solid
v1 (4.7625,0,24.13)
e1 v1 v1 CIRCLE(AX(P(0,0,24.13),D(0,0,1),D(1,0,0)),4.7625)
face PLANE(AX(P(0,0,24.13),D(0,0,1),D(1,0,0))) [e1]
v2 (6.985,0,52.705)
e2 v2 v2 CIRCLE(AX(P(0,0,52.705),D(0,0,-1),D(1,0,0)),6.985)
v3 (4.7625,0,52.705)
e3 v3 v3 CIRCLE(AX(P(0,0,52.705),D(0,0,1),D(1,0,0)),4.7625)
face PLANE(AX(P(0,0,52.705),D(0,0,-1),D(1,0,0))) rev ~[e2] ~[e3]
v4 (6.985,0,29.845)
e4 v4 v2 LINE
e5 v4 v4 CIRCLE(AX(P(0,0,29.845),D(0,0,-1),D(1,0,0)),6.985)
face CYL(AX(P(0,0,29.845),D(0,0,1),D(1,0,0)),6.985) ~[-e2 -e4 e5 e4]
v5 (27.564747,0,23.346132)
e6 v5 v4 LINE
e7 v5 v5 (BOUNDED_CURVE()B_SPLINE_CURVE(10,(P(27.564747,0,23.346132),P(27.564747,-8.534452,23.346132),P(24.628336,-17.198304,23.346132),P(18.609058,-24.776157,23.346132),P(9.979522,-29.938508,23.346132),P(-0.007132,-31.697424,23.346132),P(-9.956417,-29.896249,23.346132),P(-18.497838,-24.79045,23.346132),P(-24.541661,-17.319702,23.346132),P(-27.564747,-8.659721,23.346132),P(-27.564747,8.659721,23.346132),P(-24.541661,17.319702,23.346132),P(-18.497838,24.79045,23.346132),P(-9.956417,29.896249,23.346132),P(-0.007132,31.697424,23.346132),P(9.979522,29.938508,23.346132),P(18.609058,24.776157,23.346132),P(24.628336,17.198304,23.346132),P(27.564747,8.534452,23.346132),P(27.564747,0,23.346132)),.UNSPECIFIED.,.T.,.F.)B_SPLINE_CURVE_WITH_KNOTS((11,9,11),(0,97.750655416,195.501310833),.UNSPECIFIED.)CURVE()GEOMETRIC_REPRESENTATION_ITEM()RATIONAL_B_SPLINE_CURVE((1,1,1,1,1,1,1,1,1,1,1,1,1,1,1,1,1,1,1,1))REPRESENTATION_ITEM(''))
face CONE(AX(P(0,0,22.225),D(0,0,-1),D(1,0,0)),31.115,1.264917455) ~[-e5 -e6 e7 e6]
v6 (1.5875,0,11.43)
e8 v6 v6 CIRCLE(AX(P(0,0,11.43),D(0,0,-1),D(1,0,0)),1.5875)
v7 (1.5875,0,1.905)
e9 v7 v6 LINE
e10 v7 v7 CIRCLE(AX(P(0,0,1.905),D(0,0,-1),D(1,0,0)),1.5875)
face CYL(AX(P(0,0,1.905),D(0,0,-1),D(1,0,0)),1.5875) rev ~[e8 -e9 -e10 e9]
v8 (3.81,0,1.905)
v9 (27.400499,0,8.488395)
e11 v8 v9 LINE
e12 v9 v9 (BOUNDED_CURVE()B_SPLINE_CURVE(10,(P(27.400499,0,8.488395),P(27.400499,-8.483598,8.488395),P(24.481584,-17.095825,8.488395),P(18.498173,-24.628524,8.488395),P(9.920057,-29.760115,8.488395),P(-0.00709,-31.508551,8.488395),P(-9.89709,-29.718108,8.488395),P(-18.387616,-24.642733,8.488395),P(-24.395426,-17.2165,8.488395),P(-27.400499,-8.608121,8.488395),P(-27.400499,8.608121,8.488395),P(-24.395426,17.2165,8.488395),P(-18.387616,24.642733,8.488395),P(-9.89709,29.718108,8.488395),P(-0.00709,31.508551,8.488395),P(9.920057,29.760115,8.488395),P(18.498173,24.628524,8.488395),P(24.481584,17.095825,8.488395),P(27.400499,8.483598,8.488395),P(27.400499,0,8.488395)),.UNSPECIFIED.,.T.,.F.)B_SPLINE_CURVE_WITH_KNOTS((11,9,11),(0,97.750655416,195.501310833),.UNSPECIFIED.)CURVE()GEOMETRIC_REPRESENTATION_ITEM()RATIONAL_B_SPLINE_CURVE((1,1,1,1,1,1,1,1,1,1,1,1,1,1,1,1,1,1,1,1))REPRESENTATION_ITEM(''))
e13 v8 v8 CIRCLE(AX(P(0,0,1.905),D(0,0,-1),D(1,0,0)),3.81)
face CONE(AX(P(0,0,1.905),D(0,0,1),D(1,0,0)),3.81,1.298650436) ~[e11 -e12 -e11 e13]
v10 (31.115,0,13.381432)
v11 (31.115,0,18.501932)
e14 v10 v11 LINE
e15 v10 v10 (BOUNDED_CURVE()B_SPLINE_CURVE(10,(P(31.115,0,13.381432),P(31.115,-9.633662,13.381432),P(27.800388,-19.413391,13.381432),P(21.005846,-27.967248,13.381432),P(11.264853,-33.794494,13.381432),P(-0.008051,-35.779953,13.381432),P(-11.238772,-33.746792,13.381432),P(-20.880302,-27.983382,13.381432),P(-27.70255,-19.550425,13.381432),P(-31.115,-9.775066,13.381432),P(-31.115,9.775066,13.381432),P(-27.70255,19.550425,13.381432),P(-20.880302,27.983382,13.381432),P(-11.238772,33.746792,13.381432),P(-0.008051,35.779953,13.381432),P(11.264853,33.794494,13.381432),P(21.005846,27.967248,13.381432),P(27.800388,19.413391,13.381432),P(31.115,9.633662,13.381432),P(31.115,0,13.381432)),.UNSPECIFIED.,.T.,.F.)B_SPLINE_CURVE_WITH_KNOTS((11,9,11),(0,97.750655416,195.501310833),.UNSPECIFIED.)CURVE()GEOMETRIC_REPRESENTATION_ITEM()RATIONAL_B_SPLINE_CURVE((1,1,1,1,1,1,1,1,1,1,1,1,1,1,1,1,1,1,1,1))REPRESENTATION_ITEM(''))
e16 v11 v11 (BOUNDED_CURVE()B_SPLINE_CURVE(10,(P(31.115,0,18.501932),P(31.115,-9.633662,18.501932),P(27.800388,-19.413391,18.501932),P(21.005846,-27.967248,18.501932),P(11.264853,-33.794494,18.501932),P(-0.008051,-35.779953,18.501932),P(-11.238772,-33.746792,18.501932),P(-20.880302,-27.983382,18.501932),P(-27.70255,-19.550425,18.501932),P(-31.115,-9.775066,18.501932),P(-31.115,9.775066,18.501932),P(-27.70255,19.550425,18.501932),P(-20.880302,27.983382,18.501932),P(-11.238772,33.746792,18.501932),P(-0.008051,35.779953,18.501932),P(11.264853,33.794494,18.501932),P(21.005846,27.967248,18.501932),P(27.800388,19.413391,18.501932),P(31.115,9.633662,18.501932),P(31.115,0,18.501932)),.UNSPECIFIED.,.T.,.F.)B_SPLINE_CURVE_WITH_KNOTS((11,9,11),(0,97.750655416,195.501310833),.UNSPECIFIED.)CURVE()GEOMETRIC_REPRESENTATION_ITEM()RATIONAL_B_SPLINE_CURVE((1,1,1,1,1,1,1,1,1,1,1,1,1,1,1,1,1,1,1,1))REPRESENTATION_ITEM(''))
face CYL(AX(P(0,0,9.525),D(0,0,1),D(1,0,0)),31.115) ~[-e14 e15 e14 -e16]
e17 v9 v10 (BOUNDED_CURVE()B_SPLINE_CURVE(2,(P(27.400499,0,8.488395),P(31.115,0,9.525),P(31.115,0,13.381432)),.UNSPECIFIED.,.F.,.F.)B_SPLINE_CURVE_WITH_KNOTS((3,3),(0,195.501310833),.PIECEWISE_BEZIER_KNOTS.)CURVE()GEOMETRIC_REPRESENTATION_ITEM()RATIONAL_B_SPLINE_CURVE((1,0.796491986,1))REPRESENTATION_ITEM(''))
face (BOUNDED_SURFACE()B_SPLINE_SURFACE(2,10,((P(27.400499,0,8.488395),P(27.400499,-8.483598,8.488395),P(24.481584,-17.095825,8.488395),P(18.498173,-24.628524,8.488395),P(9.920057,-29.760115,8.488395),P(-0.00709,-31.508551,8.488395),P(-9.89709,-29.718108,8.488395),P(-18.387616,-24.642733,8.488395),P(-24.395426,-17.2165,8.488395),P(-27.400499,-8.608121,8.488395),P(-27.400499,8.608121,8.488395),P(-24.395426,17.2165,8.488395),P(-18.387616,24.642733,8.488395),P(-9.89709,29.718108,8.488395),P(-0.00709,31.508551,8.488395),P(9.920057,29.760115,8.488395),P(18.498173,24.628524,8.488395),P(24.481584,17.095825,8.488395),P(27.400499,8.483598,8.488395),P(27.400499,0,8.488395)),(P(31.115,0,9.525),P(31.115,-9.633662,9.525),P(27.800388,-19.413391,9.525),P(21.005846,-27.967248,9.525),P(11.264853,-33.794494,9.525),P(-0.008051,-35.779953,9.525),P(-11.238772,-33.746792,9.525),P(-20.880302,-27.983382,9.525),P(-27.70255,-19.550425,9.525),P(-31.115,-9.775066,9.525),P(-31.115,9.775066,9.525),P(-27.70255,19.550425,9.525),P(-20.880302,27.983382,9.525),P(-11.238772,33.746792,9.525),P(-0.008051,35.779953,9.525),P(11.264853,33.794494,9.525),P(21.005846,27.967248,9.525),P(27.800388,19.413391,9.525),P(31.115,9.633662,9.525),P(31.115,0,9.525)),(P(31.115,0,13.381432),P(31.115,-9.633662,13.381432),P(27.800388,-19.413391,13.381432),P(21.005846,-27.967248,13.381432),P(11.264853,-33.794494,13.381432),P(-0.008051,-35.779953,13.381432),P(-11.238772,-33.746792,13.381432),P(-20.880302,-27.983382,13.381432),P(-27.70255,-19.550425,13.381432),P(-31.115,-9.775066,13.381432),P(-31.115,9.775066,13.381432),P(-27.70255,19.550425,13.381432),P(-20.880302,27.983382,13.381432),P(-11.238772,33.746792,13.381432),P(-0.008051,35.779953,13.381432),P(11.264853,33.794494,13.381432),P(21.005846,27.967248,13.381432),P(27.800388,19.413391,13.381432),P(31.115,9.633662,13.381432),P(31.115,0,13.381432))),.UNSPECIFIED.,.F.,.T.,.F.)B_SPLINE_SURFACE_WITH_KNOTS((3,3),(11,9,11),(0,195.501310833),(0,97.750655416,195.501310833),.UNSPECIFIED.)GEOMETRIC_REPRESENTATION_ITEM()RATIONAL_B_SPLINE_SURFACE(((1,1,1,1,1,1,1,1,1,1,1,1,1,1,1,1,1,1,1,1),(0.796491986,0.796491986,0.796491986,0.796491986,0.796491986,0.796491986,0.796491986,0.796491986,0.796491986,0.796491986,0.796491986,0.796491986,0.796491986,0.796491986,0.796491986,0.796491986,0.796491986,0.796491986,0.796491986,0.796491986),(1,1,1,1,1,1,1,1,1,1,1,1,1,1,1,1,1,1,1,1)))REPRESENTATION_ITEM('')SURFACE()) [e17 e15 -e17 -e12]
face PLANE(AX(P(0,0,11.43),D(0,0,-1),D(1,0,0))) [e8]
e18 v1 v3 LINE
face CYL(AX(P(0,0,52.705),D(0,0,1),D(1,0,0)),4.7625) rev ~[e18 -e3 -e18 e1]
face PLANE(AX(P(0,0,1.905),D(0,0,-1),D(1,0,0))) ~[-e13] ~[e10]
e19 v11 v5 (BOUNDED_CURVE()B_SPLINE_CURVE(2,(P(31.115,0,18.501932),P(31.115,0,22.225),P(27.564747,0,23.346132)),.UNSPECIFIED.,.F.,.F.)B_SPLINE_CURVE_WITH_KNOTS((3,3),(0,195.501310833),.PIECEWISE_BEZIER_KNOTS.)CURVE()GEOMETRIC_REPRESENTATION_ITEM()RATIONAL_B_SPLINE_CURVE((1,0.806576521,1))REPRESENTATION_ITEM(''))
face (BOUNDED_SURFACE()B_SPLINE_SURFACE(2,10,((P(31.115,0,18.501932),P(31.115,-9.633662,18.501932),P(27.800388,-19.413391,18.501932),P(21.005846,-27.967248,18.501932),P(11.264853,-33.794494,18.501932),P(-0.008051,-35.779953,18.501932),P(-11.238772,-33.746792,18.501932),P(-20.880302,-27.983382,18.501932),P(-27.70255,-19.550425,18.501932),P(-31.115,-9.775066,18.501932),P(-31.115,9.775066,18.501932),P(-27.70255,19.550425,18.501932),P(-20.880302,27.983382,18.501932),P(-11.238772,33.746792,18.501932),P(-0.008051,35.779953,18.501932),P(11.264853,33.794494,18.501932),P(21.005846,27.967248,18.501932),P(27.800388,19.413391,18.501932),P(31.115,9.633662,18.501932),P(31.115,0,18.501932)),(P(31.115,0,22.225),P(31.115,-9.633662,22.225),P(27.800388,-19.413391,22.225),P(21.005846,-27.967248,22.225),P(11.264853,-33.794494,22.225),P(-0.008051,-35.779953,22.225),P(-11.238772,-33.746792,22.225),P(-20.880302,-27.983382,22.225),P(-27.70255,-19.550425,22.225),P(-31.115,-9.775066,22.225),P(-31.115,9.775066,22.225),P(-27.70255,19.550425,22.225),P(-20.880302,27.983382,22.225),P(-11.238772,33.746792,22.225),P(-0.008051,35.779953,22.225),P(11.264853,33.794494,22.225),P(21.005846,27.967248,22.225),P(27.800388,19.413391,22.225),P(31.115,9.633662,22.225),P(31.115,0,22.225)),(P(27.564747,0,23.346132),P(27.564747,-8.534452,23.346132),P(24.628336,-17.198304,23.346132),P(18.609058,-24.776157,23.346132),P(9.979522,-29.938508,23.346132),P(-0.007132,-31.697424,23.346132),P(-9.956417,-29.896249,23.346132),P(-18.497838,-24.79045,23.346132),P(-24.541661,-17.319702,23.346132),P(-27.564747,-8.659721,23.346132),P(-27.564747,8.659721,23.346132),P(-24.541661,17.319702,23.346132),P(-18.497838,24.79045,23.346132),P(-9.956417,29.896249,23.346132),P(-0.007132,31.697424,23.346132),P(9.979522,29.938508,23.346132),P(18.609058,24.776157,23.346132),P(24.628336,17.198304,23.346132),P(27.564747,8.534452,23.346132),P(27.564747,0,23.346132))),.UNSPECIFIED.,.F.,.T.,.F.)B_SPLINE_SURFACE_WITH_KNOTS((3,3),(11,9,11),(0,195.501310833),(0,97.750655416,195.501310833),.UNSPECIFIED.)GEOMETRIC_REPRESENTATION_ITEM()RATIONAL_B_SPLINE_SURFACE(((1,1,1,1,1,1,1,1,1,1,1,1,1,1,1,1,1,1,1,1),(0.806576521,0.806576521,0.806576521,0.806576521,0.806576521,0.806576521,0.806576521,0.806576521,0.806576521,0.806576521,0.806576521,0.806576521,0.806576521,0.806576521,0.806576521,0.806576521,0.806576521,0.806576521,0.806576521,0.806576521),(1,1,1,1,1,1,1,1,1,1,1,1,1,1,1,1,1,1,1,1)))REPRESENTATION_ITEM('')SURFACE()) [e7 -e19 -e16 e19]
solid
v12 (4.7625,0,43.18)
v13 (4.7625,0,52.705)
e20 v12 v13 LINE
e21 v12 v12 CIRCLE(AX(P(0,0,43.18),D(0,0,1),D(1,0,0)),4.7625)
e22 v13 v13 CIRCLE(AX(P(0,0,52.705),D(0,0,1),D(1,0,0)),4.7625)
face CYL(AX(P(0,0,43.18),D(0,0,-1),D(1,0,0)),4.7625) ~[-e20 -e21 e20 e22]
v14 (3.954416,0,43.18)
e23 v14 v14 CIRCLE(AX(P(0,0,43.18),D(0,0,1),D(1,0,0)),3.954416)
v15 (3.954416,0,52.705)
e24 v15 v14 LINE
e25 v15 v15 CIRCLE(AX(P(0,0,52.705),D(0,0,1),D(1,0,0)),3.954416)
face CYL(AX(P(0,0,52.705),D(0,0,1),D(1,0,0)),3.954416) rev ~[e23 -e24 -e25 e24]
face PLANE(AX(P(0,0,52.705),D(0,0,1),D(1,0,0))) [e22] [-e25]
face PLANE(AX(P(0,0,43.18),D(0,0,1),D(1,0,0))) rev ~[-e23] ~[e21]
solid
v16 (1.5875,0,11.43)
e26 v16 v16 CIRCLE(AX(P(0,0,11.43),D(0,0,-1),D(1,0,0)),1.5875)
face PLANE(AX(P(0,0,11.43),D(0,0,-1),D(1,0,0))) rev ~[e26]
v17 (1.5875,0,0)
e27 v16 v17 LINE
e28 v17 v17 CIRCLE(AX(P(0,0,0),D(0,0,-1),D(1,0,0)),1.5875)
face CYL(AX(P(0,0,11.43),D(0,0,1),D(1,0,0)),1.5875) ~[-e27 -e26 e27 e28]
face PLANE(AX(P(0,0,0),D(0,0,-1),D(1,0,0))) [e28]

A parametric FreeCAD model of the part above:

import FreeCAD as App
import Part
import Sketcher
from FreeCAD import Vector
Q = App.Units.Quantity


def edges_at(feature, points):
    """Names of the edges that pass closest to the given points."""
    edges = feature.Shape.Edges
    near = lambda p: min(range(len(edges)), key=lambda i: edges[i].distToShape(Part.Vertex(*p))[0])
    return sorted({f"Edge{near(p) + 1}" for p in points})

doc = App.newDocument("Part")
body = doc.addObject("PartDesign::Body", "Body")

# Sketch on XZ plane
sketch1 = body.newObject("Sketcher::SketchObject", "Sketch")
sketch1.AttachmentSupport = (doc.getObject("XZ_Plane"), [""])
sketch1.MapMode = "FlatFace"
sketch1.addGeometry(Part.LineSegment(Vector(3.8, 1.9, 0), Vector(31.1, 9.5, 0)), False)
sketch1.addGeometry(Part.LineSegment(Vector(31.1, 9.5, 0), Vector(31.1, 22.2, 0)), False)
sketch1.addGeometry(Part.LineSegment(Vector(31.1, 22.2, 0), Vector(7, 29.8, 0)), False)
sketch1.addGeometry(Part.LineSegment(Vector(7, 29.8, 0), Vector(7, 52.7, 0)), False)
sketch1.addGeometry(Part.LineSegment(Vector(7, 52.7, 0), Vector(0, 52.7, 0)), False)
sketch1.addGeometry(Part.LineSegment(Vector(0, 52.7, 0), Vector(0, 1.9, 0)), False)
sketch1.addGeometry(Part.LineSegment(Vector(0, 1.9, 0), Vector(3.8, 1.9, 0)), False)
sketch1.addConstraint(Sketcher.Constraint("Coincident", 0, 2, 1, 1))
sketch1.addConstraint(Sketcher.Constraint("Coincident", 1, 2, 2, 1))
sketch1.addConstraint(Sketcher.Constraint("Coincident", 2, 2, 3, 1))
sketch1.addConstraint(Sketcher.Constraint("Coincident", 3, 2, 4, 1))
sketch1.addConstraint(Sketcher.Constraint("Coincident", 4, 2, 5, 1))
sketch1.addConstraint(Sketcher.Constraint("Coincident", 5, 2, 6, 1))
sketch1.addConstraint(Sketcher.Constraint("Coincident", 6, 2, 0, 1))
sketch1.addConstraint(Sketcher.Constraint("Vertical", 1))
sketch1.addConstraint(Sketcher.Constraint("Vertical", 3))
sketch1.addConstraint(Sketcher.Constraint("Horizontal", 4))
sketch1.addConstraint(Sketcher.Constraint("Vertical", 5))
sketch1.addConstraint(Sketcher.Constraint("Horizontal", 6))
sketch1.addConstraint(Sketcher.Constraint("PointOnObject", 4, 2, -2))
sketch1.addConstraint(Sketcher.Constraint("DistanceY", 5, 2, 5, 1, Q("2 in")))
sketch1.addConstraint(Sketcher.Constraint("DistanceY", 1, 1, 1, 2, Q("0.5 in")))
sketch1.addConstraint(Sketcher.Constraint("DistanceY", 3, 1, 3, 2, Q("0.9 in")))
sketch1.addConstraint(Sketcher.Constraint("DistanceX", 6, 1, 6, 2, Q("0.15 in")))
sketch1.addConstraint(Sketcher.Constraint("DistanceY", 1, 2, 2, 2, Q("0.3 in")))
sketch1.addConstraint(Sketcher.Constraint("DistanceX", 4, 2, 4, 1, Q("0.275 in")))
sketch1.addConstraint(Sketcher.Constraint("DistanceX", 2, 2, 1, 2, Q("0.95 in")))
sketch1.addConstraint(Sketcher.Constraint("DistanceY", -1, 1, 0, 2, Q("0.375 in")))
revolution = body.newObject("PartDesign::Revolution", "Revolution")
revolution.Profile = sketch1
revolution.ReferenceAxis = (sketch1, ["V_Axis"])
revolution.Angle = 360

# Sketch on XY plane
sketch2 = body.newObject("Sketcher::SketchObject", "Sketch001")
sketch2.AttachmentSupport = (doc.getObject("XY_Plane"), [""])
sketch2.MapMode = "FlatFace"
sketch2.AttachmentOffset = App.Placement(Vector(0, 0, 2.075 * 25.4), App.Rotation())
sketch2.addGeometry(Part.Circle(Vector(0, 0, 0), Vector(0, 0, 1), 4.8), False)
sketch2.addConstraint(Sketcher.Constraint("Coincident", 0, 3, -1, 1))
sketch2.addConstraint(Sketcher.Constraint("Diameter", 0, Q("0.375 in")))
pocket1 = body.newObject("PartDesign::Pocket", "Pocket")
pocket1.Profile = sketch2
pocket1.Length = Q("0.375 in")

# Sketch on XY plane
sketch3 = body.newObject("Sketcher::SketchObject", "Sketch002")
sketch3.AttachmentSupport = (doc.getObject("XY_Plane"), [""])
sketch3.MapMode = "FlatFace"
sketch3.AttachmentOffset = App.Placement(Vector(0, 0, 0.075 * 25.4), App.Rotation())
sketch3.addGeometry(Part.Circle(Vector(0, 0, 0), Vector(0, 0, 1), 1.6), False)
sketch3.addConstraint(Sketcher.Constraint("Coincident", 0, 3, -1, 1))
sketch3.addConstraint(Sketcher.Constraint("Diameter", 0, Q("0.125 in")))
pocket2 = body.newObject("PartDesign::Pocket", "Pocket001")
pocket2.Profile = sketch3
pocket2.Length = Q("0.375 in")
pocket2.Reversed = True
doc.recompute()

fillet = body.newObject("PartDesign::Fillet", "Fillet")
fillet.Base = (pocket2, edges_at(pocket2, [(-31.115, 0, 9.525), (-31.115, 0, 22.225), (31.115, 0, 15.875)]))
fillet.Radius = Q("0.2 in")

# Sketch on XY plane
sketch4 = body.newObject("Sketcher::SketchObject", "Sketch003")
sketch4.AttachmentSupport = (doc.getObject("XY_Plane"), [""])
sketch4.MapMode = "FlatFace"
sketch4.AttachmentOffset = App.Placement(Vector(0, 0, 1.7 * 25.4), App.Rotation())
sketch4.addGeometry(Part.Circle(Vector(0, 0, 0), Vector(0, 0, 1), 4.8), False)
sketch4.addConstraint(Sketcher.Constraint("Coincident", 0, 3, -1, 1))
sketch4.addConstraint(Sketcher.Constraint("Diameter", 0, Q("0.375 in")))
pocket3 = body.newObject("PartDesign::Pocket", "Pocket002")
pocket3.Profile = sketch4
pocket3.Length = Q("0.75 in")
body2 = doc.addObject("PartDesign::Body", "Body001")

# Sketch on XY plane
sketch5 = body2.newObject("Sketcher::SketchObject", "Sketch004")
sketch5.AttachmentSupport = (doc.getObject("XY_Plane001"), [""])
sketch5.MapMode = "FlatFace"
sketch5.AttachmentOffset = App.Placement(Vector(0, 0, 1.7 * 25.4), App.Rotation())
sketch5.addGeometry(Part.Circle(Vector(0, 0, 0), Vector(0, 0, 1), 4.8), False)
sketch5.addConstraint(Sketcher.Constraint("Coincident", 0, 3, -1, 1))
sketch5.addConstraint(Sketcher.Constraint("Diameter", 0, Q("0.375 in")))
pad1 = body2.newObject("PartDesign::Pad", "Pad")
pad1.Profile = sketch5
pad1.Length = Q("0.375 in")

# Sketch on XY plane
sketch6 = body2.newObject("Sketcher::SketchObject", "Sketch005")
sketch6.AttachmentSupport = (doc.getObject("XY_Plane001"), [""])
sketch6.MapMode = "FlatFace"
sketch6.AttachmentOffset = App.Placement(Vector(0, 0, 2.075 * 25.4), App.Rotation())
sketch6.addGeometry(Part.Circle(Vector(0, 0, 0), Vector(0, 0, 1), 4), False)
sketch6.addConstraint(Sketcher.Constraint("Coincident", 0, 3, -1, 1))
sketch6.addConstraint(Sketcher.Constraint("Diameter", 0, Q("7.908832 mm")))
pocket4 = body2.newObject("PartDesign::Pocket", "Pocket003")
pocket4.Profile = sketch6
pocket4.Length = Q("0.375 in")
body3 = doc.addObject("PartDesign::Body", "Body002")

# Sketch on XY plane
sketch7 = body3.newObject("Sketcher::SketchObject", "Sketch006")
sketch7.AttachmentSupport = (doc.getObject("XY_Plane002"), [""])
sketch7.MapMode = "FlatFace"
sketch7.AttachmentOffset = App.Placement(Vector(0, 0, 0.45 * 25.4), App.Rotation())
sketch7.addGeometry(Part.Circle(Vector(0, 0, 0), Vector(0, 0, 1), 1.6), False)
sketch7.addConstraint(Sketcher.Constraint("Coincident", 0, 3, -1, 1))
sketch7.addConstraint(Sketcher.Constraint("Diameter", 0, Q("0.125 in")))
pad2 = body3.newObject("PartDesign::Pad", "Pad001")
pad2.Profile = sketch7
pad2.Length = Q("0.45 in")
pad2.Reversed = True

doc.recompute()
